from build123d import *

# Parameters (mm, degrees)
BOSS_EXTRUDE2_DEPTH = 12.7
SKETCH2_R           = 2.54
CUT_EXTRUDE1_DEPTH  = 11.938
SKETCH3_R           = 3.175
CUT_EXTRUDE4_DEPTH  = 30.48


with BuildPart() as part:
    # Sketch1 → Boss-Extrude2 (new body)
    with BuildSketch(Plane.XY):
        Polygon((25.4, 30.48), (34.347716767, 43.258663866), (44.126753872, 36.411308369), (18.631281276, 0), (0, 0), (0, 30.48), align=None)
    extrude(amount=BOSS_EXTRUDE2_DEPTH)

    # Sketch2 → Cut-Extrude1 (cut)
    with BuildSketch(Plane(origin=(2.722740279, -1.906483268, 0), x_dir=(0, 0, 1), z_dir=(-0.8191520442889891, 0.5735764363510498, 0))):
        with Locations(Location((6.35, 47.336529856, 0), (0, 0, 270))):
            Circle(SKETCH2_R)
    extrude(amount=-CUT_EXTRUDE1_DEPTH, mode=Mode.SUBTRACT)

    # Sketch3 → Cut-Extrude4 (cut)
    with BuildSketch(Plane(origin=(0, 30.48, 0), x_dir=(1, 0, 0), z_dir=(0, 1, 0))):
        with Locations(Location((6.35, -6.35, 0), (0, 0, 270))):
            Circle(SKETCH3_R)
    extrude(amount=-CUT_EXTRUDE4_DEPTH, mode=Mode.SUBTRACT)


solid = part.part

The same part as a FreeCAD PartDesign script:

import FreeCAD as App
import Part
import Sketcher

V = App.Vector
Q = App.Units.Quantity

doc = App.newDocument("Part")
body = doc.addObject("PartDesign::Body", "Body")

sketch1 = body.newObject("Sketcher::SketchObject", "Sketch")
sketch1.AttachmentSupport = (doc.getObject("XY_Plane"), [""])
sketch1.MapMode = "FlatFace"
sketch1.addGeometry([
    Part.LineSegment(V(34, 43, 0), V(25, 30, 0)),
    Part.LineSegment(V(25, 30, 0), V(0, 30, 0)),
    Part.LineSegment(V(0, 30, 0), V(0, 0, 0)),
    Part.LineSegment(V(0, 0, 0), V(19, 0, 0)),
    Part.LineSegment(V(19, 0, 0), V(44, 36, 0)),
    Part.LineSegment(V(44, 36, 0), V(34, 43, 0)),
], False)
sketch1.addConstraint([
    Sketcher.Constraint("Coincident", 0, 2, 1, 1),
    Sketcher.Constraint("Coincident", 1, 2, 2, 1),
    Sketcher.Constraint("Coincident", 2, 2, 3, 1),
    Sketcher.Constraint("Coincident", 3, 2, 4, 1),
    Sketcher.Constraint("Coincident", 4, 2, 5, 1),
    Sketcher.Constraint("Coincident", 5, 2, 0, 1),
    Sketcher.Constraint("Horizontal", 1),
    Sketcher.Constraint("Vertical", 2),
    Sketcher.Constraint("Horizontal", 3),
    Sketcher.Constraint("Coincident", 2, 2, -1, 1),
    Sketcher.Constraint("Parallel", 0, 4),
    Sketcher.Constraint("Perpendicular", 4, 5),
    Sketcher.Constraint("DistanceX", 1, 2, 1, 1, Q("1 in")),
    Sketcher.Constraint("DistanceY", 2, 2, 2, 1, Q("1.2 in")),
    Sketcher.Constraint("Angle", 0, Q("-125 deg")),
    Sketcher.Constraint("Distance", 4, Q("1.75 in")),
    Sketcher.Constraint("Distance", 5, Q("0.47 in")),
])
pad1 = body.newObject("PartDesign::Pad", "Pad")
pad1.Profile = sketch1
pad1.Length = Q("0.5 in")

sketch2 = body.newObject("Sketcher::SketchObject", "Sketch001")
sketch2.Placement = App.Placement(V(2.72274, -1.906483, 0), App.Rotation(V(0, 0, 1), V(0.573576436, 0.819152044, 0), V(-0.819152044, 0.573576436, 0), "ZXY"))
sketch2.addGeometry(Part.Circle(V(6.3, 47.3, 0), V(0, 0, 1), 2.5), False)
sketch2.addConstraint([
    Sketcher.Constraint("Diameter", 0, Q("0.2 in")),
    Sketcher.Constraint("DistanceX", -1, 1, 0, 3, Q("0.25 in")),
    Sketcher.Constraint("DistanceY", -1, 1, 0, 3, 47.33653),
])
pocket1 = body.newObject("PartDesign::Pocket", "Pocket")
pocket1.Profile = sketch2
pocket1.Length = Q("0.47 in")

sketch3 = body.newObject("Sketcher::SketchObject", "Sketch002")
sketch3.AttachmentSupport = (doc.getObject("XZ_Plane"), [""])
sketch3.MapMode = "FlatFace"
sketch3.AttachmentOffset = App.Placement(V(0, 0, -1.2 * 25.4), App.Rotation())
sketch3.addGeometry(Part.Circle(V(6.3, 6.3, 0), V(0, 0, 1), 3.2), False)
sketch3.addConstraint([
    Sketcher.Constraint("Diameter", 0, Q("0.25 in")),
    Sketcher.Constraint("DistanceX", -1, 1, 0, 3, Q("0.25 in")),
    Sketcher.Constraint("DistanceY", -1, 1, 0, 3, Q("0.25 in")),
])
pocket2 = body.newObject("PartDesign::Pocket", "Pocket001")
pocket2.Profile = sketch3
pocket2.Length = Q("1.2 in")
pocket2.Reversed = True

doc.recompute()
